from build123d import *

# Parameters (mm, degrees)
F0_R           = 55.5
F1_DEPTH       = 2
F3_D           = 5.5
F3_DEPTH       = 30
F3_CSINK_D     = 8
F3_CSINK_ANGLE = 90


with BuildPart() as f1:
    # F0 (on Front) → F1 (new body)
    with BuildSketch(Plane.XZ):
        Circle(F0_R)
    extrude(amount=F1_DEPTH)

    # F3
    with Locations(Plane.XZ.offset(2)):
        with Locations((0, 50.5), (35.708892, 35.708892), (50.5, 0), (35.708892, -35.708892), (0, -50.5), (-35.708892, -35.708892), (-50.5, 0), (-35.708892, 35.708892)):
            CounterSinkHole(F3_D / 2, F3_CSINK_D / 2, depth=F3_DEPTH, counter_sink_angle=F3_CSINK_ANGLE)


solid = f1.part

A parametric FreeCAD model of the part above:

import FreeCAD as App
import Part
import Sketcher
Q = App.Units.Quantity

doc = App.newDocument("Part")
params = doc.addObject("Spreadsheet::Sheet", "Params")
for row, (alias, value) in enumerate([
    ("sketch1_diameter", "111 mm"),
    ("pad1_length", "2 mm"),
    ("sketch2_diameter", "5.5 mm"),
    ("hole_diameter", "5.5 mm"),
    ("hole_depth", "30 mm"),
    ("hole_csink_diameter", "8 mm"),
], start=1):
    params.set(f"A{row}", alias)
    params.set(f"B{row}", "=" + value)
    params.setAlias(f"B{row}", alias)

body = doc.addObject("PartDesign::Body", "Body")

# Sketch on XZ plane
sketch1 = doc.addObject("Sketcher::SketchObject", "Sketch")
body.addObject(sketch1)
sketch1.AttachmentSupport = (doc.XZ_Plane, [""])
sketch1.MapMode = "FlatFace"
sketch1.addGeometry(Part.Circle(App.Vector(0, 0, 0), App.Vector(0, 0, 1), 56), False)
sketch1.addConstraint(Sketcher.Constraint("Coincident", 0, 3, -1, 1))
sketch1.addConstraint(Sketcher.Constraint("Diameter", 0, Q("111 mm")))
sketch1.setExpression("Constraints[1]", "Params.sketch1_diameter")
pad1 = doc.addObject("PartDesign::Pad", "Pad")
body.addObject(pad1)
pad1.Profile = sketch1
pad1.setExpression("Length", "Params.pad1_length")

# Sketch on XZ plane
sketch2 = doc.addObject("Sketcher::SketchObject", "Sketch001")
body.addObject(sketch2)
sketch2.AttachmentSupport = (doc.XZ_Plane, [""])
sketch2.MapMode = "FlatFace"
sketch2.AttachmentOffset = App.Placement(App.Vector(0, 0, 2), App.Rotation())
sketch2.addGeometry(Part.Circle(App.Vector(0, 50.5, 0), App.Vector(0, 0, 1), 2.8), False)
sketch2.addGeometry(Part.Circle(App.Vector(35.7, 35.7, 0), App.Vector(0, 0, 1), 2.8), False)
sketch2.addGeometry(Part.Circle(App.Vector(50.5, 0, 0), App.Vector(0, 0, 1), 2.8), False)
sketch2.addGeometry(Part.Circle(App.Vector(35.7, -35.7, 0), App.Vector(0, 0, 1), 2.8), False)
sketch2.addGeometry(Part.Circle(App.Vector(0, -50.5, 0), App.Vector(0, 0, 1), 2.8), False)
sketch2.addGeometry(Part.Circle(App.Vector(-35.7, -35.7, 0), App.Vector(0, 0, 1), 2.8), False)
sketch2.addGeometry(Part.Circle(App.Vector(-50.5, 0, 0), App.Vector(0, 0, 1), 2.8), False)
sketch2.addGeometry(Part.Circle(App.Vector(-35.7, 35.7, 0), App.Vector(0, 0, 1), 2.8), False)
sketch2.addConstraint(Sketcher.Constraint("Equal", 0, 1))
sketch2.addConstraint(Sketcher.Constraint("Equal", 1, 2))
sketch2.addConstraint(Sketcher.Constraint("Equal", 2, 3))
sketch2.addConstraint(Sketcher.Constraint("Equal", 3, 4))
sketch2.addConstraint(Sketcher.Constraint("Equal", 4, 5))
sketch2.addConstraint(Sketcher.Constraint("Equal", 5, 6))
sketch2.addConstraint(Sketcher.Constraint("Equal", 6, 7))
sketch2.addConstraint(Sketcher.Constraint("Symmetric", 0, 3, 4, 3, -1, 1))
sketch2.addConstraint(Sketcher.Constraint("Symmetric", 1, 3, 5, 3, -1, 1))
sketch2.addConstraint(Sketcher.Constraint("Symmetric", 2, 3, 6, 3, -1, 1))
sketch2.addConstraint(Sketcher.Constraint("Symmetric", 3, 3, 7, 3, -1, 1))
sketch2.addConstraint(Sketcher.Constraint("Symmetric", 3, 3, 5, 3, -2))
sketch2.addConstraint(Sketcher.Constraint("PointOnObject", 0, 3, -2))
sketch2.addConstraint(Sketcher.Constraint("PointOnObject", 2, 3, -1))
sketch2.addConstraint(Sketcher.Constraint("Diameter", 0, Q("5.5 mm")))
sketch2.addConstraint(Sketcher.Constraint("DistanceY", 4, 3, 0, 3, Q("101 mm")))
sketch2.addConstraint(Sketcher.Constraint("DistanceX", -1, 1, 2, 3, Q("50.5 mm")))
sketch2.addConstraint(Sketcher.Constraint("DistanceY", 1, 3, 0, 3, Q("14.791108 mm")))
sketch2.addConstraint(Sketcher.Constraint("DistanceX", 1, 3, 2, 3, Q("14.791108 mm")))
sketch2.setExpression("Constraints[14]", "Params.sketch2_diameter")
doc.recompute()
hole = doc.addObject("PartDesign::Hole", "Hole")
body.addObject(hole)
hole.Profile = sketch2
hole.ThreadType = "None"
hole.setExpression("Diameter", "Params.hole_diameter")
hole.DepthType = "Dimension"
hole.setExpression("Depth", "Params.hole_depth")
hole.DrillPoint = "Flat"
hole.HoleCutType = "Countersink"
hole.setExpression("HoleCutDiameter", "Params.hole_csink_diameter")
hole.HoleCutCountersinkAngle = 90

doc.recompute()
